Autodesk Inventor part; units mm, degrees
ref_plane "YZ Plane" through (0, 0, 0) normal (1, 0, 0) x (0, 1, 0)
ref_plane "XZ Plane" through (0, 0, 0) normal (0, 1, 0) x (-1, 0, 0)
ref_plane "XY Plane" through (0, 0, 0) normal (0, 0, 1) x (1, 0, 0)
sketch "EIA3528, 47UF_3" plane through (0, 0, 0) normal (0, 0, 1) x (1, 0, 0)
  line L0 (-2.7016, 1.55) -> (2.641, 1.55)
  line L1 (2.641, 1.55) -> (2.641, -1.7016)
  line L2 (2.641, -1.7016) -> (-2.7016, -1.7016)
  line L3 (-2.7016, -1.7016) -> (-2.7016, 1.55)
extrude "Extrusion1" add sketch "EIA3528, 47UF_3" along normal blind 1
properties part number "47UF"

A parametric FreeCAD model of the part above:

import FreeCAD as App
import Part
import Sketcher
from FreeCAD import Vector
Q = App.Units.Quantity

doc = App.newDocument("Part")
params = doc.addObject("Spreadsheet::Sheet", "Params")
for row, (alias, value) in enumerate([
    ("pad1_length", "1 mm"),
], start=1):
    params.set(f"A{row}", alias)
    params.set(f"B{row}", "=" + value)
    params.setAlias(f"B{row}", alias)

body = doc.addObject("PartDesign::Body", "Body")

# Sketch on XY plane
sketch1 = body.newObject("Sketcher::SketchObject", "Sketch")
sketch1.AttachmentSupport = (doc.getObject("XY_Plane"), [""])
sketch1.MapMode = "FlatFace"
sketch1.addGeometry([
    Part.LineSegment(Vector(2.641, 1.55, 0), Vector(-2.7016, 1.55, 0)),
    Part.LineSegment(Vector(-2.7016, 1.55, 0), Vector(-2.7016, -1.7016, 0)),
    Part.LineSegment(Vector(-2.7016, -1.7016, 0), Vector(2.641, -1.7016, 0)),
    Part.LineSegment(Vector(2.641, -1.7016, 0), Vector(2.641, 1.55, 0)),
], False)
sketch1.addConstraint([
    Sketcher.Constraint("Coincident", 0, 2, 1, 1),
    Sketcher.Constraint("Coincident", 1, 2, 2, 1),
    Sketcher.Constraint("Coincident", 2, 2, 3, 1),
    Sketcher.Constraint("Coincident", 3, 2, 0, 1),
    Sketcher.Constraint("Horizontal", 0),
    Sketcher.Constraint("Vertical", 1),
    Sketcher.Constraint("Horizontal", 2),
    Sketcher.Constraint("Vertical", 3),
    Sketcher.Constraint("DistanceY", -1, 1, 0, 2, Q("1.55 mm")),
    Sketcher.Constraint("DistanceX", 0, 2, 0, 1, Q("5.3426 mm")),
    Sketcher.Constraint("DistanceY", 1, 2, 1, 1, Q("3.2516 mm")),
    Sketcher.Constraint("DistanceX", -1, 1, 2, 2, Q("2.641 mm")),
])
pad1 = body.newObject("PartDesign::Pad", "Pad")
pad1.Profile = sketch1
pad1.setExpression("Length", "Params.pad1_length")

doc.recompute()
